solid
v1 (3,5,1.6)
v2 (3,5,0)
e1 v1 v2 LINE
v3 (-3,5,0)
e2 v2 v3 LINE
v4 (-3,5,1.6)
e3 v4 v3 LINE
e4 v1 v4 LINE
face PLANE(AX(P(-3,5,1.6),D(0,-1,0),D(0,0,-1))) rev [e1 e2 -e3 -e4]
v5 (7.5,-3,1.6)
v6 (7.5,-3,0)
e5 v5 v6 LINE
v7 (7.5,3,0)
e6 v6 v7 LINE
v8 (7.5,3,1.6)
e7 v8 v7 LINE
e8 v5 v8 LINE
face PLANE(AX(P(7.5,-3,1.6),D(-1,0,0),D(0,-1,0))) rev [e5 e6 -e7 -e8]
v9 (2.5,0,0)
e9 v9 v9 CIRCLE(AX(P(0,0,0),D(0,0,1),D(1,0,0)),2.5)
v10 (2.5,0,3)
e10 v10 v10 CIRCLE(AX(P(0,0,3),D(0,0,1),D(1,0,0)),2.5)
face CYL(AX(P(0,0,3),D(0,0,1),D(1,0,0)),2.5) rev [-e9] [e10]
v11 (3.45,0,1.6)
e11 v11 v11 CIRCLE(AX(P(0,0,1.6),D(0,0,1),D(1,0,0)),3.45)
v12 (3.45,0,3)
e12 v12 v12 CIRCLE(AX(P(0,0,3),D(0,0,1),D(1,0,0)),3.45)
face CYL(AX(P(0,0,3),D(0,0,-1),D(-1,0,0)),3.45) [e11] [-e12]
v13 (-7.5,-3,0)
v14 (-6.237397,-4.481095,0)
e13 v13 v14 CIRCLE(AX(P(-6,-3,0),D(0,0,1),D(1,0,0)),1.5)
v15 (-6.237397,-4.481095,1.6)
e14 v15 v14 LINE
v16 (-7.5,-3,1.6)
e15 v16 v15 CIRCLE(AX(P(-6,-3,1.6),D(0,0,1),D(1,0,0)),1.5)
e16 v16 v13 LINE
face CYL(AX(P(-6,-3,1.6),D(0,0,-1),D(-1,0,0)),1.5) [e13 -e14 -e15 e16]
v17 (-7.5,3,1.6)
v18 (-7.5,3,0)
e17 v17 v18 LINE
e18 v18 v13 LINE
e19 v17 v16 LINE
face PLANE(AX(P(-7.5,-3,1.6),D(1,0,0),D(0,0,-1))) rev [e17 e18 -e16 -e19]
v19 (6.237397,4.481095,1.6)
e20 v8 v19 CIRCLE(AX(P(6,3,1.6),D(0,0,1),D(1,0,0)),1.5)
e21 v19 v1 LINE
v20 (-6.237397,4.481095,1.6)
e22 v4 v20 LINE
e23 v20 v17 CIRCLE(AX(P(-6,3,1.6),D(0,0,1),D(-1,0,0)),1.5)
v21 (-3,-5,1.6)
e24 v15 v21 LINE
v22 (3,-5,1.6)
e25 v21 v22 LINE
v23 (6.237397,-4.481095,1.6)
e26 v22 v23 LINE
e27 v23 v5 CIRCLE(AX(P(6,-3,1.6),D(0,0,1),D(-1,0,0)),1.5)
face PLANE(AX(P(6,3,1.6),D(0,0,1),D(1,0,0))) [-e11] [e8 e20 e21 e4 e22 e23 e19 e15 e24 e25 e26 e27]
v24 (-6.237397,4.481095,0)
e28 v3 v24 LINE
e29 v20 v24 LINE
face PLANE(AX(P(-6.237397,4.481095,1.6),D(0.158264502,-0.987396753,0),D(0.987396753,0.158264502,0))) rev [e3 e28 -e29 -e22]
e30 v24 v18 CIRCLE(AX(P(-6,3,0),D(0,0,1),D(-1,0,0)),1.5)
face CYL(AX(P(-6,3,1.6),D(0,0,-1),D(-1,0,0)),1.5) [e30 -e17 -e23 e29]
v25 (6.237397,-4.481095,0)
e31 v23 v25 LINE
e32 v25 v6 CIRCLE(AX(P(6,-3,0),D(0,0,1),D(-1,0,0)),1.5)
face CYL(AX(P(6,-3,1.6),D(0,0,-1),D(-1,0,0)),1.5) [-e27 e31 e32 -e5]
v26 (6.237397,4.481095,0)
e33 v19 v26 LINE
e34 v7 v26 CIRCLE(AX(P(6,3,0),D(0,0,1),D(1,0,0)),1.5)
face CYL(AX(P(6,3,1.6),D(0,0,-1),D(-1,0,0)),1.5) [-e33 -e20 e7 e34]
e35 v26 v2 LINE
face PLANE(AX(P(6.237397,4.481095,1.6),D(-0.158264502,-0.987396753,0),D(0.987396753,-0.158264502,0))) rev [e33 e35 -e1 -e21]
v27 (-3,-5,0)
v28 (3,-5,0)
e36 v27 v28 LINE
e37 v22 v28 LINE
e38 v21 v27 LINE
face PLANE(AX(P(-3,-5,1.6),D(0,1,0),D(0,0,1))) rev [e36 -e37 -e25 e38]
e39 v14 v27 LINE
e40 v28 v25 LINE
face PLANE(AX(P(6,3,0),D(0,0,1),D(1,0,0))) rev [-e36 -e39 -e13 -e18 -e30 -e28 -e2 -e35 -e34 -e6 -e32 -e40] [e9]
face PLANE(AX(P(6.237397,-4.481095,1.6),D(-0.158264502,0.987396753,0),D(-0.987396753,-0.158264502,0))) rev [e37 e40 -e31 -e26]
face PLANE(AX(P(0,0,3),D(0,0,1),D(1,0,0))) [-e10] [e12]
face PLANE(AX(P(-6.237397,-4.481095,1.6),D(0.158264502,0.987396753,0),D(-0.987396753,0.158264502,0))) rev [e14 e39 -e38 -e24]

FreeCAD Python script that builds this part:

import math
import FreeCAD as App
import Part
import Sketcher
from FreeCAD import Vector

doc = App.newDocument("Part")
body = doc.addObject("PartDesign::Body", "Body")

sketch1 = body.newObject("Sketcher::SketchObject", "Sketch")
sketch1.AttachmentSupport = (doc.getObject("XY_Plane"), [""])
sketch1.MapMode = "FlatFace"
sketch1.addGeometry([
    Part.LineSegment(Vector(-3, 5, 0), Vector(-6.2, 4.5, 0)),
    Part.ArcOfCircle(Part.Circle(Vector(-6, 3, 0), Vector(0, 0, 1), 1.5), math.radians(99), math.radians(180)),
    Part.LineSegment(Vector(-7.5, 3, 0), Vector(-7.5, -3, 0)),
    Part.ArcOfCircle(Part.Circle(Vector(-6, -3, 0), Vector(0, 0, 1), 1.5), math.radians(180), math.radians(261)),
    Part.LineSegment(Vector(-6.2, -4.5, 0), Vector(-3, -5, 0)),
    Part.LineSegment(Vector(-3, -5, 0), Vector(3, -5, 0)),
    Part.LineSegment(Vector(3, -5, 0), Vector(6.2, -4.5, 0)),
    Part.ArcOfCircle(Part.Circle(Vector(6, -3, 0), Vector(0, 0, 1), 1.5), math.radians(-81), math.radians(0)),
    Part.LineSegment(Vector(7.5, -3, 0), Vector(7.5, 3, 0)),
    Part.ArcOfCircle(Part.Circle(Vector(6, 3, 0), Vector(0, 0, 1), 1.5), math.radians(0), math.radians(81)),
    Part.LineSegment(Vector(6.2, 4.5, 0), Vector(3, 5, 0)),
    Part.LineSegment(Vector(3, 5, 0), Vector(-3, 5, 0)),
], False)
sketch1.addConstraint([
    Sketcher.Constraint("Tangent", 0, 2, 1, 1),
    Sketcher.Constraint("Tangent", 1, 2, 2, 1),
    Sketcher.Constraint("Tangent", 2, 2, 3, 1),
    Sketcher.Constraint("Tangent", 3, 2, 4, 1),
    Sketcher.Constraint("Coincident", 4, 2, 5, 1),
    Sketcher.Constraint("Coincident", 5, 2, 6, 1),
    Sketcher.Constraint("Tangent", 6, 2, 7, 1),
    Sketcher.Constraint("Tangent", 7, 2, 8, 1),
    Sketcher.Constraint("Tangent", 8, 2, 9, 1),
    Sketcher.Constraint("Tangent", 9, 2, 10, 1),
    Sketcher.Constraint("Coincident", 10, 2, 11, 1),
    Sketcher.Constraint("Coincident", 11, 2, 0, 1),
    Sketcher.Constraint("Vertical", 2),
    Sketcher.Constraint("Horizontal", 5),
    Sketcher.Constraint("Vertical", 8),
    Sketcher.Constraint("Horizontal", 11),
    Sketcher.Constraint("Equal", 1, 3),
    Sketcher.Constraint("Equal", 3, 7),
    Sketcher.Constraint("Equal", 7, 9),
    Sketcher.Constraint("Symmetric", 1, 3, 7, 3, -1, 1),
    Sketcher.Constraint("Symmetric", 3, 2, 9, 2, -1, 1),
    Sketcher.Constraint("Symmetric", 5, 2, 11, 2, -1, 1),
    Sketcher.Constraint("Symmetric", 3, 2, 6, 2, -2),
    Sketcher.Constraint("Equal", 11, 2),
    Sketcher.Constraint("Radius", 1, 1.5),
    Sketcher.Constraint("DistanceX", 5, 1, 5, 2, 6.0),
    Sketcher.Constraint("DistanceX", 1, 3, -1, 1, 6.0),
    Sketcher.Constraint("DistanceY", 4, 2, -1, 1, 5.0),
])
pad1 = body.newObject("PartDesign::Pad", "Pad")
pad1.Profile = sketch1
pad1.Length = 1.6

sketch2 = body.newObject("Sketcher::SketchObject", "Sketch001")
sketch2.AttachmentSupport = (doc.getObject("XY_Plane"), [""])
sketch2.MapMode = "FlatFace"
sketch2.AttachmentOffset = App.Placement(Vector(0, 0, 1.6), App.Rotation())
sketch2.addGeometry(Part.Circle(Vector(0, 0, 0), Vector(0, 0, 1), 3.5), False)
sketch2.addConstraint([
    Sketcher.Constraint("Coincident", 0, 3, -1, 1),
    Sketcher.Constraint("Diameter", 0, 6.9),
])
pad2 = body.newObject("PartDesign::Pad", "Pad001")
pad2.Profile = sketch2
pad2.Length = 1.4

sketch3 = body.newObject("Sketcher::SketchObject", "Sketch002")
sketch3.AttachmentSupport = (doc.getObject("XY_Plane"), [""])
sketch3.MapMode = "FlatFace"
sketch3.AttachmentOffset = App.Placement(Vector(0, 0, 3), App.Rotation())
sketch3.addGeometry(Part.Circle(Vector(0, 0, 0), Vector(0, 0, 1), 2.5), False)
sketch3.addConstraint([
    Sketcher.Constraint("Coincident", 0, 3, -1, 1),
    Sketcher.Constraint("Diameter", 0, 5.0),
])
doc.recompute()
hole = body.newObject("PartDesign::Hole", "Hole")
hole.Profile = sketch3
hole.ThreadType = "None"
hole.Diameter = 5
hole.DepthType = "ThroughAll"

doc.recompute()
